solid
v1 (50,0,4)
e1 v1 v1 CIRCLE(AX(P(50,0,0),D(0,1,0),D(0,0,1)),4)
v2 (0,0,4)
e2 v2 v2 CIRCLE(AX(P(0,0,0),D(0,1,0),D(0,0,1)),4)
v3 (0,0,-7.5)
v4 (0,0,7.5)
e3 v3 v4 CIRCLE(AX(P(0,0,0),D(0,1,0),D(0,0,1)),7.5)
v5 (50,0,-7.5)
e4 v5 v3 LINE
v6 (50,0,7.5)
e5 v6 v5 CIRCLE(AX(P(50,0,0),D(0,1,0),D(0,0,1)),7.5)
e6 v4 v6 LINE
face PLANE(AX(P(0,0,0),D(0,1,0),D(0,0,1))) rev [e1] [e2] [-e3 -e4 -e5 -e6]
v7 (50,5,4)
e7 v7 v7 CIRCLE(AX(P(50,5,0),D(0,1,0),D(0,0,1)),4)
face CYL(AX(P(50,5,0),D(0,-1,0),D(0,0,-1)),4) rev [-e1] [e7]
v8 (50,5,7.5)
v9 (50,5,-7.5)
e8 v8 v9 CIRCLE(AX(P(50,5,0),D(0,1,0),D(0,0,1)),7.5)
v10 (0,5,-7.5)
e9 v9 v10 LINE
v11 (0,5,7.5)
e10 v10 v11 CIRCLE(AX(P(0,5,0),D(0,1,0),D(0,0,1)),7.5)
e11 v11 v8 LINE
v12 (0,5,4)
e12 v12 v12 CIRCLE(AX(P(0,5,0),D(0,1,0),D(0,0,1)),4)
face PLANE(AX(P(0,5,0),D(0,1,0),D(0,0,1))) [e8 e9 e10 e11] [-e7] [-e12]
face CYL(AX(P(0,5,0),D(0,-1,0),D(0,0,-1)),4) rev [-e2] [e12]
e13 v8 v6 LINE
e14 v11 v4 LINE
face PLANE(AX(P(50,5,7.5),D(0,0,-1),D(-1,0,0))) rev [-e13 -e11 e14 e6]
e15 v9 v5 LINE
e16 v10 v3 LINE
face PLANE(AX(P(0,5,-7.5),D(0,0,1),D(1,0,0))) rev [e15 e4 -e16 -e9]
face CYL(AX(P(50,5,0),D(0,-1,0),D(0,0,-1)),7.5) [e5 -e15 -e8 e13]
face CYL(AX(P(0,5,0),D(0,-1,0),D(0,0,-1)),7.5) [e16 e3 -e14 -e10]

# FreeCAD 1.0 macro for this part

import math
import FreeCAD as App
import Part
import Sketcher

doc = App.newDocument("Part")
body = doc.addObject("PartDesign::Body", "Body")

# Sketch on XZ plane
sketch1 = body.newObject("Sketcher::SketchObject", "Sketch")
sketch1.AttachmentSupport = (doc.getObject("XZ_Plane"), [""])
sketch1.MapMode = "FlatFace"
sketch1.addGeometry([
    Part.LineSegment(App.Vector(50, -7.5, 0), App.Vector(0, -7.5, 0)),  # 0
    Part.ArcOfCircle(Part.Circle(App.Vector(0, 0, 0), App.Vector(0, 0, 1), 7.5), math.radians(90), math.radians(270)),  # 1
    Part.LineSegment(App.Vector(0, 7.5, 0), App.Vector(50, 7.5, 0)),  # 2
    Part.ArcOfCircle(Part.Circle(App.Vector(50, 0, 0), App.Vector(0, 0, 1), 7.5), math.radians(-90), math.radians(90)),  # 3
    Part.Circle(App.Vector(50, 0, 0), App.Vector(0, 0, 1), 4),  # 4
    Part.Circle(App.Vector(0, 0, 0), App.Vector(0, 0, 1), 4),  # 5
], False)
sketch1.addConstraint([
    Sketcher.Constraint("Tangent", 0, 2, 1, 2),
    Sketcher.Constraint("Tangent", 1, 1, 2, 1),
    Sketcher.Constraint("Tangent", 2, 2, 3, 2),
    Sketcher.Constraint("Tangent", 3, 1, 0, 1),
    Sketcher.Constraint("Horizontal", 0),
    Sketcher.Constraint("Horizontal", 2),
    Sketcher.Constraint("Coincident", 1, 3, -1, 1),
    Sketcher.Constraint("Coincident", 5, 3, -1, 1),
    Sketcher.Constraint("Coincident", 4, 3, 3, 3),
    Sketcher.Constraint("Equal", 4, 5),
    Sketcher.Constraint("Diameter", 4, 8.0),
    Sketcher.Constraint("Radius", 1, 7.5),
    Sketcher.Constraint("DistanceX", 0, 2, 0, 1, 50.0),
])
pad1 = body.newObject("PartDesign::Pad", "Pad")
pad1.Profile = sketch1
pad1.Length = 5
pad1.Reversed = True

doc.recompute()
